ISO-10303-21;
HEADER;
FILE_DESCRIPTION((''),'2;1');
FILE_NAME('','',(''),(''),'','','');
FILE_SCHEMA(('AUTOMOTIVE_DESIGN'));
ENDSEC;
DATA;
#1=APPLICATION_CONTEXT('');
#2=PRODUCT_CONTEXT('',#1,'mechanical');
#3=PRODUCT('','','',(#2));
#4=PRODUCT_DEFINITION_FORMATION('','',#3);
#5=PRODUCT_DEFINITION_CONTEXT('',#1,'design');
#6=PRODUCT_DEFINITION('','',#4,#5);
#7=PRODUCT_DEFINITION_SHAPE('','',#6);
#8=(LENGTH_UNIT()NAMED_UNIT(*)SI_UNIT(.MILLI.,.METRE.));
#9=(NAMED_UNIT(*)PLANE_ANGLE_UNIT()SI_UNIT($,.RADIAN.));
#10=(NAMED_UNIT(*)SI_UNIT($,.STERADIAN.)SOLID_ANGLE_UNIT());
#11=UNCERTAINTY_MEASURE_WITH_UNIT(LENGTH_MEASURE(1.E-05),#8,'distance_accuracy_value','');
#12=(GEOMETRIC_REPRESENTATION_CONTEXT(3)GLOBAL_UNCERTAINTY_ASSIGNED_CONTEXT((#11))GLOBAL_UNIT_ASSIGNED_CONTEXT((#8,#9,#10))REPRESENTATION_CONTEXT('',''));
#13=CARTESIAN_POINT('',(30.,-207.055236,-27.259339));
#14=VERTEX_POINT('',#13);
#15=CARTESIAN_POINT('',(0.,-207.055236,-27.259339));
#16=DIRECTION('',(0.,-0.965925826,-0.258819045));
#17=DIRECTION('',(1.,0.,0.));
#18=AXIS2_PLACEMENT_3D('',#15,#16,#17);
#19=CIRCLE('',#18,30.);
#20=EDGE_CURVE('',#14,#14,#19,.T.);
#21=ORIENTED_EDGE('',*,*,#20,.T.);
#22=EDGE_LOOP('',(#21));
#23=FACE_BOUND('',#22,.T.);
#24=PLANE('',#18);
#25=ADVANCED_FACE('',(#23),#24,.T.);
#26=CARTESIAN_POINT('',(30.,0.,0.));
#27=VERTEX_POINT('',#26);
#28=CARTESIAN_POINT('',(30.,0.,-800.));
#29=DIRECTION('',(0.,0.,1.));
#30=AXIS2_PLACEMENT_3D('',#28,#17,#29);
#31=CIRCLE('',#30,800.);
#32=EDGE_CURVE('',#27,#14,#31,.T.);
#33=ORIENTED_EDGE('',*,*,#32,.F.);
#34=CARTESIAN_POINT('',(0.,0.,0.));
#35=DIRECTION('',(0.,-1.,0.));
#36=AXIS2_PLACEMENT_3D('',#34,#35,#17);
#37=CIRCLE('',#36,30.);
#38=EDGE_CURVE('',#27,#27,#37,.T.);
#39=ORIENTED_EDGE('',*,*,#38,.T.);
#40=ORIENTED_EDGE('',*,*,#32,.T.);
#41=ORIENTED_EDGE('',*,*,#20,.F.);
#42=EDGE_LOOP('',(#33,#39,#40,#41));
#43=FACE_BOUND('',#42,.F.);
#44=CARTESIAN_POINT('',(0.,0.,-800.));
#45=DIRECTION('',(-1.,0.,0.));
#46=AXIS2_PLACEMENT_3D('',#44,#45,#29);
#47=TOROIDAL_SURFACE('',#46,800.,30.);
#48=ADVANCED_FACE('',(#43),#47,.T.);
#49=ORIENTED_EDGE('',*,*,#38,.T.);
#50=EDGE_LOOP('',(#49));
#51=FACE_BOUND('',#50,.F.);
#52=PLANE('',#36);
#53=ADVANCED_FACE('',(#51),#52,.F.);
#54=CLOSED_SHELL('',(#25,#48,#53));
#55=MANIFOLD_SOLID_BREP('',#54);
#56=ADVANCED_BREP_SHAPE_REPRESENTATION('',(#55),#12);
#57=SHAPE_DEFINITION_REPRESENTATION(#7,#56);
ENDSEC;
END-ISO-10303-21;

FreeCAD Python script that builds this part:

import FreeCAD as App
import Part
import Sketcher

V = App.Vector

doc = App.newDocument("Part")
params = doc.addObject("Spreadsheet::Sheet", "Params")
for row, (alias, value) in enumerate([
    ("sketch1_diameter", "60 mm"),
    ("sketch1_width", "10 mm"),
    ("revolution_angle", "15 deg"),
], start=1):
    params.set(f"A{row}", alias)
    params.set(f"B{row}", "=" + value)
    params.setAlias(f"B{row}", alias)

body = doc.addObject("PartDesign::Body", "Body")

sketch1 = doc.addObject("Sketcher::SketchObject", "Sketch")
body.addObject(sketch1)
sketch1.AttachmentSupport = (doc.XZ_Plane, [""])
sketch1.MapMode = "FlatFace"
sketch1.addGeometry(Part.Circle(V(0, 0, 0), V(0, 0, 1), 30), False)
sketch1.addGeometry(Part.LineSegment(V(0, -800, 0), V(10, -800, 0)), True)
sketch1.addConstraint(Sketcher.Constraint("Horizontal", 1))
sketch1.addConstraint(Sketcher.Constraint("Coincident", 0, 3, -1, 1))
sketch1.addConstraint(Sketcher.Constraint("PointOnObject", 1, 1, -2))
sketch1.addConstraint(Sketcher.Constraint("Diameter", 0, 60.0))
sketch1.addConstraint(Sketcher.Constraint("DistanceX", 1, 1, 1, 2, 10.0))
sketch1.addConstraint(Sketcher.Constraint("DistanceY", 1, 1, -1, 1, 800.0))
sketch1.setExpression("Constraints[3]", "Params.sketch1_diameter")
sketch1.setExpression("Constraints[4]", "Params.sketch1_width")
revolution = doc.addObject("PartDesign::Revolution", "Revolution")
body.addObject(revolution)
revolution.Profile = sketch1
revolution.ReferenceAxis = (sketch1, ["Axis0"])
revolution.setExpression("Angle", "Params.revolution_angle")

doc.recompute()
